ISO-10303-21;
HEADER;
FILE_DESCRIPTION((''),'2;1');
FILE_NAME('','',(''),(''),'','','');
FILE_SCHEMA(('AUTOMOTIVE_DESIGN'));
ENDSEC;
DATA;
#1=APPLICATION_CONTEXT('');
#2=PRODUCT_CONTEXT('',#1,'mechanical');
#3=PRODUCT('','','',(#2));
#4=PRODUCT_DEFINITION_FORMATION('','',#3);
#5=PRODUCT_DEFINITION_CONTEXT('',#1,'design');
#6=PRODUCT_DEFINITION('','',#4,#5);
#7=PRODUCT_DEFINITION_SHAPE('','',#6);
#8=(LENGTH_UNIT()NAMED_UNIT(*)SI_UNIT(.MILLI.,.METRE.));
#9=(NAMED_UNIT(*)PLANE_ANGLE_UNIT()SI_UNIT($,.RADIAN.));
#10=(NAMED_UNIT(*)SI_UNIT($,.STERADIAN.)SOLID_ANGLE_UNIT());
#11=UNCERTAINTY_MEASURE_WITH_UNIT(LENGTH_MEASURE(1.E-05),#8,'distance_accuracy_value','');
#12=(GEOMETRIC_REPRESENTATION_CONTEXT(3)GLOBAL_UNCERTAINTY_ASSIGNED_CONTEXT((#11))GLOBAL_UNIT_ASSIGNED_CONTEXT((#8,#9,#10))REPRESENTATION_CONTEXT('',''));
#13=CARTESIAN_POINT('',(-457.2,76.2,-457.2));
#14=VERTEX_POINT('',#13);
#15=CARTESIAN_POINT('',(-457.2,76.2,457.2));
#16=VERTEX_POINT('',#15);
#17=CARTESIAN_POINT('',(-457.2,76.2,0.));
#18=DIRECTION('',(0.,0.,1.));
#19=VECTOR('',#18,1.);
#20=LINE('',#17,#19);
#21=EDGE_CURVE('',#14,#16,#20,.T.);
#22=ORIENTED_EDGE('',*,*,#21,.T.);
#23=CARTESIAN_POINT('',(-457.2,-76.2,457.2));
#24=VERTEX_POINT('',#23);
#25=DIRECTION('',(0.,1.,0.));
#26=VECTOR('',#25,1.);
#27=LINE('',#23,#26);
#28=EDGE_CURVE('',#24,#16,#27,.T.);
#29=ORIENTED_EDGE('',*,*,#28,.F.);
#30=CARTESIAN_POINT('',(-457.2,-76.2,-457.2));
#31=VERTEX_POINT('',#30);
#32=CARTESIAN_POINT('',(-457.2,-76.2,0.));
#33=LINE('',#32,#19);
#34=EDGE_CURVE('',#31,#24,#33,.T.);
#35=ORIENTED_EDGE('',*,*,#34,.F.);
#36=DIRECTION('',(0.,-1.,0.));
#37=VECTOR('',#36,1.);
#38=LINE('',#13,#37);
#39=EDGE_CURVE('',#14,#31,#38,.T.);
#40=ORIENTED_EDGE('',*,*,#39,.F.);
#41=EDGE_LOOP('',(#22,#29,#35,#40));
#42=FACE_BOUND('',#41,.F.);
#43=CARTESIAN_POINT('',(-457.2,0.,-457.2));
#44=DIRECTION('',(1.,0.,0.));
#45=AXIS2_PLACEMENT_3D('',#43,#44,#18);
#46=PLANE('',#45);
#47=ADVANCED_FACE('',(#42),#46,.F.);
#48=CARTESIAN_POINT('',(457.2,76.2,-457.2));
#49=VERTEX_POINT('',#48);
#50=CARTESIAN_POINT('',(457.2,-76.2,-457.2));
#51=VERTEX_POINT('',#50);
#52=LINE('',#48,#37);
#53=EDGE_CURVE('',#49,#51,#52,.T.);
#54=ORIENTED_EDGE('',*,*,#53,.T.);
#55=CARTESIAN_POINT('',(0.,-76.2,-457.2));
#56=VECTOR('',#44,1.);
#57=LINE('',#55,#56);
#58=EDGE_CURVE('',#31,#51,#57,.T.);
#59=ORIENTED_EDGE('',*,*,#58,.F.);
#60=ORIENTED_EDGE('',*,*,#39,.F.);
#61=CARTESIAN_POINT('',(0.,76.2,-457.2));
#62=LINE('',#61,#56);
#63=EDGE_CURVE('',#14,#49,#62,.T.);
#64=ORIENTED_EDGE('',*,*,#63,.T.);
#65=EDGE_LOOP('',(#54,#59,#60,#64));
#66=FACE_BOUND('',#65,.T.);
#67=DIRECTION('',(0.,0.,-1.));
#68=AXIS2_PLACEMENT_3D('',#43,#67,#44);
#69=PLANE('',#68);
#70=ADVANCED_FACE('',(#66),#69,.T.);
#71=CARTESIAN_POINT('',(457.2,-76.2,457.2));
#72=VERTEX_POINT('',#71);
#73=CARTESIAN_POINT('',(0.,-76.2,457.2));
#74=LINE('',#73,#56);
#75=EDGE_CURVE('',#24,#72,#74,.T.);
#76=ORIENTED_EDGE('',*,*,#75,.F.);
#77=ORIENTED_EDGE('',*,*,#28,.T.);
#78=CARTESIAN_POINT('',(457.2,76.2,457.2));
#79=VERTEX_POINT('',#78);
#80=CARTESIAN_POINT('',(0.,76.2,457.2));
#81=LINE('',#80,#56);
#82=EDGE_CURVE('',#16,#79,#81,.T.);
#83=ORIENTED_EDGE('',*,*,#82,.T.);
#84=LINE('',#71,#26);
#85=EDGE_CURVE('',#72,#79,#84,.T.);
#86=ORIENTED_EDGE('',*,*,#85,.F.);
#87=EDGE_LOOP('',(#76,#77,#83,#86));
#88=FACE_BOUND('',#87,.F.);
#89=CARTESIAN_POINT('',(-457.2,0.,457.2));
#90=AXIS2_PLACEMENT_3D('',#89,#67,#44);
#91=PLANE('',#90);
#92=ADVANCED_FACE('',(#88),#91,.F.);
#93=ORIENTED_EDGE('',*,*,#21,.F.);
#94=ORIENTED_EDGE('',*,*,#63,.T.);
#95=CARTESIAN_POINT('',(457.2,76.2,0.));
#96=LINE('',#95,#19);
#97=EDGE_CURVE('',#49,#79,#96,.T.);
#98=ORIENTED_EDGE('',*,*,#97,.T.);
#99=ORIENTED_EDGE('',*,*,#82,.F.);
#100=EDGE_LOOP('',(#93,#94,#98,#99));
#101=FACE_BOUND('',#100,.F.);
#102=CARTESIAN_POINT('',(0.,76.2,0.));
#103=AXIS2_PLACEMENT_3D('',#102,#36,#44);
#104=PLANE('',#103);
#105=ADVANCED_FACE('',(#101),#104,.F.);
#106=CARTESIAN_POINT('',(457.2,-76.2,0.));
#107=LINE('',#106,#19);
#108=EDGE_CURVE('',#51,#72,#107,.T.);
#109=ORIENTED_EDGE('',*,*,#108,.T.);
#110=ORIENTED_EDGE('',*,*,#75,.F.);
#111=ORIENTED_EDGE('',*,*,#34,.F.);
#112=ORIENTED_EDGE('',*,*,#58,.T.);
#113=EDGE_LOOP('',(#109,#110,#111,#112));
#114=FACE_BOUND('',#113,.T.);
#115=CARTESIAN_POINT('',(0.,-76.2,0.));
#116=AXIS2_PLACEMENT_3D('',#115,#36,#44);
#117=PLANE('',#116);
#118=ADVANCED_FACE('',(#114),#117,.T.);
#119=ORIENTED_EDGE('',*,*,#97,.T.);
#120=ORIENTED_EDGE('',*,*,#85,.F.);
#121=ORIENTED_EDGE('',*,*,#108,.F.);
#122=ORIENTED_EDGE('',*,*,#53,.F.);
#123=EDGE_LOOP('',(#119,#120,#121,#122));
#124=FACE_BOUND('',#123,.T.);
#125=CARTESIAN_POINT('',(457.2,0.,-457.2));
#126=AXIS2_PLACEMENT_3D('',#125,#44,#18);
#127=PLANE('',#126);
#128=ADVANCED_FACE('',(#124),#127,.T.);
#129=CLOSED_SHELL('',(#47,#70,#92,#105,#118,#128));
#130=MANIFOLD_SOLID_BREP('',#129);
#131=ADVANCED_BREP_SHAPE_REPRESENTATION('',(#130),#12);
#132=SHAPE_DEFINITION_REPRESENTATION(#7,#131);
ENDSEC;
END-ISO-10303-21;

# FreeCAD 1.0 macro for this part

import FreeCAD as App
import Part
import Sketcher
Q = App.Units.Quantity


def add_polygon(sketch, points):
    """Adds a closed chain of lines whose ends are joined by coincident constraints."""
    first, n = sketch.GeometryCount, len(points)
    for a, b in zip(points, points[1:] + points[:1]):
        sketch.addGeometry(Part.LineSegment(App.Vector(*a, 0), App.Vector(*b, 0)), False)
    for i in range(n):
        sketch.addConstraint(Sketcher.Constraint("Coincident", first + i, 2, first + (i + 1) % n, 1))

doc = App.newDocument("Part")
body = doc.addObject("PartDesign::Body", "Body")

sketch1 = doc.addObject("Sketcher::SketchObject", "Sketch")
body.addObject(sketch1)
sketch1.AttachmentSupport = (doc.XZ_Plane, [""])
sketch1.MapMode = "FlatFace"
add_polygon(sketch1, [(-457, 457), (-457, -457), (457, -457), (457, 457)])
sketch1.addConstraint(Sketcher.Constraint("Vertical", 0))
sketch1.addConstraint(Sketcher.Constraint("Horizontal", 1))
sketch1.addConstraint(Sketcher.Constraint("Vertical", 2))
sketch1.addConstraint(Sketcher.Constraint("Horizontal", 3))
sketch1.addConstraint(Sketcher.Constraint("Symmetric", 0, 2, 2, 2, -1, 1))
sketch1.addConstraint(Sketcher.Constraint("Equal", 3, 0))
sketch1.addConstraint(Sketcher.Constraint("DistanceX", 1, 1, 1, 2, Q("36 in")))
pad1 = doc.addObject("PartDesign::Pad", "Pad")
body.addObject(pad1)
pad1.Profile = sketch1
pad1.Length = Q("6 in")
pad1.Midplane = True

doc.recompute()
